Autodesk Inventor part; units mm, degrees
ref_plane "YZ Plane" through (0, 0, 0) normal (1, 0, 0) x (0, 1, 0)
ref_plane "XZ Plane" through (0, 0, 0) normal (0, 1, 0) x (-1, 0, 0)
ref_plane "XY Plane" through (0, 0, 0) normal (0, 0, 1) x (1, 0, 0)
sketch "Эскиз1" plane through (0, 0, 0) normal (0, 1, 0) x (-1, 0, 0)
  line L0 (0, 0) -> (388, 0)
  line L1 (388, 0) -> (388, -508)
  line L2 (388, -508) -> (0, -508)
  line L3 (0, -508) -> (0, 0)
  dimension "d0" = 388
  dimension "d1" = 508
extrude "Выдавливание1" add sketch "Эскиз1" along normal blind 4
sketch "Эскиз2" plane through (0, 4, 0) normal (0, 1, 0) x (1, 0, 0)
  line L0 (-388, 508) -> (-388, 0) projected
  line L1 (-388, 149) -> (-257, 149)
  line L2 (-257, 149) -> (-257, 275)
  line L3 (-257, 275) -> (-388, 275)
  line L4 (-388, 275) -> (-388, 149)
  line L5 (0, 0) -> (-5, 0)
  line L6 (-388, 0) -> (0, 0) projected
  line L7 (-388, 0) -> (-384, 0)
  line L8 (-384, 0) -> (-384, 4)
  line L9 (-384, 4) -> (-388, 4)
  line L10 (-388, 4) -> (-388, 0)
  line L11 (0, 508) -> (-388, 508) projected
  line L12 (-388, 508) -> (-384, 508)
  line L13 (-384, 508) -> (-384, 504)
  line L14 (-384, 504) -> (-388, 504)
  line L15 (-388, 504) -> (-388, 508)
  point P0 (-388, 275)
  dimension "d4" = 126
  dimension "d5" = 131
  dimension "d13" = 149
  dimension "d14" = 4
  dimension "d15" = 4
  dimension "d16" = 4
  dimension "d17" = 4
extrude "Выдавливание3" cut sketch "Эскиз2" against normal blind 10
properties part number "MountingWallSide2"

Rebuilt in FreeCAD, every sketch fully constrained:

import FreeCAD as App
import Part
import Sketcher

V = App.Vector


def add_polygon(sketch, points):
    """Adds a closed chain of lines whose ends are joined by coincident constraints."""
    first, n = sketch.GeometryCount, len(points)
    for a, b in zip(points, points[1:] + points[:1]):
        sketch.addGeometry(Part.LineSegment(App.Vector(*a, 0), App.Vector(*b, 0)), False)
    for i in range(n):
        sketch.addConstraint(Sketcher.Constraint("Coincident", first + i, 2, first + (i + 1) % n, 1))

doc = App.newDocument("Part")
body = doc.addObject("PartDesign::Body", "Body")

sketch1 = doc.addObject("Sketcher::SketchObject", "Sketch")
body.addObject(sketch1)
sketch1.AttachmentSupport = (doc.XZ_Plane, [""])
sketch1.MapMode = "FlatFace"
add_polygon(sketch1, [(-388, 0), (0, 0), (0, -508), (-388, -508)])
sketch1.addConstraint(Sketcher.Constraint("Horizontal", 0))
sketch1.addConstraint(Sketcher.Constraint("Vertical", 1))
sketch1.addConstraint(Sketcher.Constraint("Horizontal", 2))
sketch1.addConstraint(Sketcher.Constraint("Vertical", 3))
sketch1.addConstraint(Sketcher.Constraint("Coincident", 0, 2, -1, 1))
sketch1.addConstraint(Sketcher.Constraint("DistanceX", 0, 1, 0, 2, 388.0))
sketch1.addConstraint(Sketcher.Constraint("DistanceY", 1, 2, 1, 1, 508.0))
pad1 = doc.addObject("PartDesign::Pad", "Pad")
body.addObject(pad1)
pad1.Profile = sketch1
pad1.Length = 4
pad1.Reversed = True

sketch2 = doc.addObject("Sketcher::SketchObject", "Sketch001")
body.addObject(sketch2)
sketch2.AttachmentSupport = (doc.XZ_Plane, [""])
sketch2.MapMode = "FlatFace"
sketch2.AttachmentOffset = App.Placement(V(0, 0, -4), App.Rotation())
add_polygon(sketch2, [(-384, -508), (-388, -508), (-388, -504), (-384, -504)])
add_polygon(sketch2, [(-384, -4), (-388, -4), (-388, 0), (-384, 0)])
add_polygon(sketch2, [(-257, -275), (-388, -275), (-388, -149), (-257, -149)])
sketch2.addConstraint(Sketcher.Constraint("Horizontal", 0))
sketch2.addConstraint(Sketcher.Constraint("Vertical", 1))
sketch2.addConstraint(Sketcher.Constraint("Horizontal", 2))
sketch2.addConstraint(Sketcher.Constraint("Vertical", 3))
sketch2.addConstraint(Sketcher.Constraint("Horizontal", 4))
sketch2.addConstraint(Sketcher.Constraint("Vertical", 5))
sketch2.addConstraint(Sketcher.Constraint("Horizontal", 6))
sketch2.addConstraint(Sketcher.Constraint("Vertical", 7))
sketch2.addConstraint(Sketcher.Constraint("Horizontal", 8))
sketch2.addConstraint(Sketcher.Constraint("Vertical", 9))
sketch2.addConstraint(Sketcher.Constraint("Horizontal", 10))
sketch2.addConstraint(Sketcher.Constraint("Vertical", 11))
sketch2.addConstraint(Sketcher.Constraint("PointOnObject", 5, 2, -1))
sketch2.addConstraint(Sketcher.Constraint("Vertical", 1, 2, 4, 2))
sketch2.addConstraint(Sketcher.Constraint("Vertical", 3, 2, 6, 2))
sketch2.addConstraint(Sketcher.Constraint("Vertical", 5, 2, 8, 2))
sketch2.addConstraint(Sketcher.Constraint("Equal", 6, 1))
sketch2.addConstraint(Sketcher.Constraint("Equal", 3, 5))
sketch2.addConstraint(Sketcher.Constraint("DistanceX", 0, 2, 0, 1, 4.0))
sketch2.addConstraint(Sketcher.Constraint("DistanceX", 8, 2, 8, 1, 131.0))
sketch2.addConstraint(Sketcher.Constraint("DistanceY", 9, 1, 9, 2, 126.0))
sketch2.addConstraint(Sketcher.Constraint("DistanceY", 9, 2, -1, 1, 149.0))
sketch2.addConstraint(Sketcher.Constraint("DistanceX", 0, 2, -1, 1, 388.0))
sketch2.addConstraint(Sketcher.Constraint("DistanceY", 0, 2, -1, 1, 508.0))
pocket1 = doc.addObject("PartDesign::Pocket", "Pocket")
body.addObject(pocket1)
pocket1.Profile = sketch2
pocket1.Length = 10
pocket1.Reversed = True

doc.recompute()
